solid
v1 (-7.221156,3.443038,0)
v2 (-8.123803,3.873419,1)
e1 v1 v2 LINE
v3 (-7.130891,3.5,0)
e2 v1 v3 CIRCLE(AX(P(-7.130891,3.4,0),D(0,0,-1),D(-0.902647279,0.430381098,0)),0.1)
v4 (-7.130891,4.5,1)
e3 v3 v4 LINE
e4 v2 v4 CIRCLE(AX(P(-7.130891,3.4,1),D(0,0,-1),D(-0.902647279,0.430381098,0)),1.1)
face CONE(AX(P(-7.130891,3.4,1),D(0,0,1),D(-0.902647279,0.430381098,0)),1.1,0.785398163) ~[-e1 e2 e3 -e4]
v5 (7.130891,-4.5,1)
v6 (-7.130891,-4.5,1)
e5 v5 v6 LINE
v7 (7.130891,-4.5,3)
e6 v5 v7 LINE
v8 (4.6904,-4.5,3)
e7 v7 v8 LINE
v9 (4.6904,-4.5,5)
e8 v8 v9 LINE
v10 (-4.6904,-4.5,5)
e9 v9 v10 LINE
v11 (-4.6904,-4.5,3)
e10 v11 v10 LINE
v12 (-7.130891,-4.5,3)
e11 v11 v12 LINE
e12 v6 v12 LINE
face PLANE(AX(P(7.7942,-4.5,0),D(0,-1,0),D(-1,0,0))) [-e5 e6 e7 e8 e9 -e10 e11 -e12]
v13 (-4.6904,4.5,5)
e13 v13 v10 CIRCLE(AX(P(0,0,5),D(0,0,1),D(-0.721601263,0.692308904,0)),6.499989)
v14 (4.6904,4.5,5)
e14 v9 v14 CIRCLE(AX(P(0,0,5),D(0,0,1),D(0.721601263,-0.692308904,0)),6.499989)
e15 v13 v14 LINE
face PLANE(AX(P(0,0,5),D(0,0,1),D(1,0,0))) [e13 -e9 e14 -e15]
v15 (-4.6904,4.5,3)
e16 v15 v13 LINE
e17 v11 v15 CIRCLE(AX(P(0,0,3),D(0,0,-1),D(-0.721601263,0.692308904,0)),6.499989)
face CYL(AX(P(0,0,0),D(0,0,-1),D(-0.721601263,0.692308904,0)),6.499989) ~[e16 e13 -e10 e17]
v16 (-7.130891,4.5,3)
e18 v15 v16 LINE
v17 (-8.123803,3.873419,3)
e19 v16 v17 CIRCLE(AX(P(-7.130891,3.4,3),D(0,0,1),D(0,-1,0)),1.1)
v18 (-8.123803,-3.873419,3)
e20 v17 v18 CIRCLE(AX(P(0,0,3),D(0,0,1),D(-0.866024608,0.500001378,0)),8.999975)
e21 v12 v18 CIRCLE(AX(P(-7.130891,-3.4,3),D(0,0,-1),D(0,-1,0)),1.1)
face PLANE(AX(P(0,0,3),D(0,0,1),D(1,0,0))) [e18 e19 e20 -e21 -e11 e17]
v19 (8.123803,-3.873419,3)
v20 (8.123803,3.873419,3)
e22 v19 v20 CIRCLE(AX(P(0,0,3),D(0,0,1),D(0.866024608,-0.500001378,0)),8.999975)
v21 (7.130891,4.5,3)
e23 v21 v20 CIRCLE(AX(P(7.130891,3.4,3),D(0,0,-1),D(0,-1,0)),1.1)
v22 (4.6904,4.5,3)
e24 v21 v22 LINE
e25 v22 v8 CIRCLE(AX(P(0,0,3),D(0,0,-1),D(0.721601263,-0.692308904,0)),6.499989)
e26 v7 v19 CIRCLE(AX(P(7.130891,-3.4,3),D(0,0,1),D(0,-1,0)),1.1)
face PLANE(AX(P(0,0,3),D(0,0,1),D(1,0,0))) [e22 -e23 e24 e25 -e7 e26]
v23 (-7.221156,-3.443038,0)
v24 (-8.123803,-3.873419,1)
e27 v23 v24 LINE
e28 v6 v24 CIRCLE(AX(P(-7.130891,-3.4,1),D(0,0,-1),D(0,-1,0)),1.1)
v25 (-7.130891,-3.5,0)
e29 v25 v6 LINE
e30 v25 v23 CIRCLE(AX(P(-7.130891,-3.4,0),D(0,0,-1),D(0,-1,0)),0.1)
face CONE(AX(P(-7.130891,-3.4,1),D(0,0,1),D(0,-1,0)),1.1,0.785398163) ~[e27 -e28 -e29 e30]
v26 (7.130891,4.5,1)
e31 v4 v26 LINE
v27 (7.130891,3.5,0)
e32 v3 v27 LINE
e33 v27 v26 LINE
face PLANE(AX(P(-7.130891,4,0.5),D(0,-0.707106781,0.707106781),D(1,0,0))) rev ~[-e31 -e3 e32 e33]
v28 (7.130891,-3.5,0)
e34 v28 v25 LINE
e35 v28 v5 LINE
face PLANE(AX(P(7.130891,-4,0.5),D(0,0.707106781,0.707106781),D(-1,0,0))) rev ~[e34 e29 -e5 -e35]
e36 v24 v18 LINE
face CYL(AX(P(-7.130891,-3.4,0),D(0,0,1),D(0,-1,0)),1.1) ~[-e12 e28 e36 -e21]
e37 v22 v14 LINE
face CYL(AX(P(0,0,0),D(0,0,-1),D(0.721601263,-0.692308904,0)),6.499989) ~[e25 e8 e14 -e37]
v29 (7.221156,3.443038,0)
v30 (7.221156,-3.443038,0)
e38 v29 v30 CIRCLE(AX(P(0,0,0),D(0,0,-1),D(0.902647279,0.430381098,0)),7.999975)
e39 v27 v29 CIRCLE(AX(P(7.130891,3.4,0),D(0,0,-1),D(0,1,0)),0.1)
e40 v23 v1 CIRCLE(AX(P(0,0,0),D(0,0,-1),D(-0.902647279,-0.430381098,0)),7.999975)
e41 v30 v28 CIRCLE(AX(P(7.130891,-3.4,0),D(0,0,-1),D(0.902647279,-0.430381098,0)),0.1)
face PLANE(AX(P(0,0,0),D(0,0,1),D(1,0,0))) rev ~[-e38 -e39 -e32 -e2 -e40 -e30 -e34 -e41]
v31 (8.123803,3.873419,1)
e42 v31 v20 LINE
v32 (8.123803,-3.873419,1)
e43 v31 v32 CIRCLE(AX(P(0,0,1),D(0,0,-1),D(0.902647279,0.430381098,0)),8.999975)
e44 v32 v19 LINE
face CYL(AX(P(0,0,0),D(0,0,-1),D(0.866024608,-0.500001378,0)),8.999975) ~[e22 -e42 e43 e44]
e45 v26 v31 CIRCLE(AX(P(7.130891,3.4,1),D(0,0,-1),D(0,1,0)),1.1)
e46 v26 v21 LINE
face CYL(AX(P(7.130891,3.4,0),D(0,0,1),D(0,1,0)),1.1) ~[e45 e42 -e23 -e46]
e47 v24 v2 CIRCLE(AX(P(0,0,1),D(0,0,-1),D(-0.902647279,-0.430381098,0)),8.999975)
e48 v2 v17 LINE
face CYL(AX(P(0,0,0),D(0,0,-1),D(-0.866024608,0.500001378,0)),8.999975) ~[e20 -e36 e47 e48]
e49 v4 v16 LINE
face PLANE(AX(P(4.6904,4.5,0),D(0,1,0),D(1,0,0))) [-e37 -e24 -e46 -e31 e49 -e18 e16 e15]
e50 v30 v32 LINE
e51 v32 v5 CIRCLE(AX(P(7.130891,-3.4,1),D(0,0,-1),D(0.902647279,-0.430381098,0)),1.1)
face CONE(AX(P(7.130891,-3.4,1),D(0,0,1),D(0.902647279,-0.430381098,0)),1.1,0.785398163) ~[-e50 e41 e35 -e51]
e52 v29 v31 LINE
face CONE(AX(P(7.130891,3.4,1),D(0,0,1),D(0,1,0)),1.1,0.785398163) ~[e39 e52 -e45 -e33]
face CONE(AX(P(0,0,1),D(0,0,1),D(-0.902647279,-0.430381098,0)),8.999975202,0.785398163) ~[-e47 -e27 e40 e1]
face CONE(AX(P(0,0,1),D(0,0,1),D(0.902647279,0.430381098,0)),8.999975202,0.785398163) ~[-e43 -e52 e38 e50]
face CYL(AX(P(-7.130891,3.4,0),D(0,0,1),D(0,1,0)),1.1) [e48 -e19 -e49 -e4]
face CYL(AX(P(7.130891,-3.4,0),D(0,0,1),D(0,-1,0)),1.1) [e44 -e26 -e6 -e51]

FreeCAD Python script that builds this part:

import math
import FreeCAD as App
import Part
import Sketcher


def edges_at(feature, points):
    """Names of the edges that pass closest to the given points."""
    edges = feature.Shape.Edges
    near = lambda p: min(range(len(edges)), key=lambda i: edges[i].distToShape(Part.Vertex(*p))[0])
    return sorted({f"Edge{near(p) + 1}" for p in points})

doc = App.newDocument("Part")
params = doc.addObject("Spreadsheet::Sheet", "Params")
for row, (alias, value) in enumerate([
    ("sketch1_radius", "9 mm"),
    ("pad1_length", "3 mm"),
    ("sketch2_radius", "6.5 mm"),
    ("pad2_length", "5 mm"),
    ("fillet_radius", "1.1 mm"),
    ("chamfer_size", "1 mm"),
], start=1):
    params.set(f"A{row}", alias)
    params.set(f"B{row}", "=" + value)
    params.setAlias(f"B{row}", alias)

body = doc.addObject("PartDesign::Body", "Body")

# Sketch on XY plane
sketch1 = body.newObject("Sketcher::SketchObject", "Sketch")
sketch1.AttachmentSupport = (doc.getObject("XY_Plane"), [""])
sketch1.MapMode = "FlatFace"
sketch1.addGeometry(Part.ArcOfCircle(Part.Circle(App.Vector(0, 0, 0), App.Vector(0, 0, 1), 9), math.radians(-30), math.radians(30)), False)
sketch1.addGeometry(Part.LineSegment(App.Vector(8, 4, 0), App.Vector(-8, 4, 0)), False)
sketch1.addGeometry(Part.ArcOfCircle(Part.Circle(App.Vector(0, 0, 0), App.Vector(0, 0, 1), 9), math.radians(150), math.radians(210)), False)
sketch1.addGeometry(Part.LineSegment(App.Vector(-8, -4, 0), App.Vector(8, -4, 0)), False)
sketch1.addConstraint(Sketcher.Constraint("Coincident", 0, 2, 1, 1))
sketch1.addConstraint(Sketcher.Constraint("Coincident", 1, 2, 2, 1))
sketch1.addConstraint(Sketcher.Constraint("Coincident", 2, 2, 3, 1))
sketch1.addConstraint(Sketcher.Constraint("Coincident", 3, 2, 0, 1))
sketch1.addConstraint(Sketcher.Constraint("Horizontal", 1))
sketch1.addConstraint(Sketcher.Constraint("Horizontal", 3))
sketch1.addConstraint(Sketcher.Constraint("Coincident", 0, 3, -1, 1))
sketch1.addConstraint(Sketcher.Constraint("Coincident", 2, 3, -1, 1))
sketch1.addConstraint(Sketcher.Constraint("Equal", 0, 2))
sketch1.addConstraint(Sketcher.Constraint("Vertical", 1, 2, 2, 2))
sketch1.addConstraint(Sketcher.Constraint("Radius", 0, 9.0))
sketch1.addConstraint(Sketcher.Constraint("DistanceY", 2, 2, 1, 2, 9.0))
sketch1.setExpression("Constraints[10]", "Params.sketch1_radius")
pad1 = body.newObject("PartDesign::Pad", "Pad")
pad1.Profile = sketch1
pad1.setExpression("Length", "Params.pad1_length")

# Sketch on XY plane
sketch2 = body.newObject("Sketcher::SketchObject", "Sketch001")
sketch2.AttachmentSupport = (doc.getObject("XY_Plane"), [""])
sketch2.MapMode = "FlatFace"
sketch2.addGeometry(Part.LineSegment(App.Vector(-5, -4, 0), App.Vector(5, -4, 0)), False)
sketch2.addGeometry(Part.ArcOfCircle(Part.Circle(App.Vector(0, 0, 0), App.Vector(0, 0, 1), 6), math.radians(-44), math.radians(44)), False)
sketch2.addGeometry(Part.LineSegment(App.Vector(5, 4, 0), App.Vector(-5, 4, 0)), False)
sketch2.addGeometry(Part.ArcOfCircle(Part.Circle(App.Vector(0, 0, 0), App.Vector(0, 0, 1), 6), math.radians(136), math.radians(224)), False)
sketch2.addConstraint(Sketcher.Constraint("Coincident", 0, 2, 1, 1))
sketch2.addConstraint(Sketcher.Constraint("Coincident", 1, 2, 2, 1))
sketch2.addConstraint(Sketcher.Constraint("Coincident", 2, 2, 3, 1))
sketch2.addConstraint(Sketcher.Constraint("Coincident", 3, 2, 0, 1))
sketch2.addConstraint(Sketcher.Constraint("Horizontal", 0))
sketch2.addConstraint(Sketcher.Constraint("Horizontal", 2))
sketch2.addConstraint(Sketcher.Constraint("Coincident", 1, 3, -1, 1))
sketch2.addConstraint(Sketcher.Constraint("Coincident", 3, 3, -1, 1))
sketch2.addConstraint(Sketcher.Constraint("Equal", 1, 3))
sketch2.addConstraint(Sketcher.Constraint("Vertical", 0, 2, 1, 2))
sketch2.addConstraint(Sketcher.Constraint("Radius", 1, 6.5))
sketch2.addConstraint(Sketcher.Constraint("DistanceY", 0, 2, 1, 2, 9.0))
sketch2.setExpression("Constraints[10]", "Params.sketch2_radius")
pad2 = body.newObject("PartDesign::Pad", "Pad001")
pad2.Profile = sketch2
pad2.setExpression("Length", "Params.pad2_length")
doc.recompute()

fillet = body.newObject("PartDesign::Fillet", "Fillet")
fillet.Base = (pad2, edges_at(pad2, [
    (7.794, -4.5, 1.5),
    (-7.794, -4.5, 1.5),
    (-7.794, 4.5, 1.5),
    (7.794, 4.5, 1.5),
]))
fillet.setExpression("Radius", "Params.fillet_radius")
doc.recompute()

chamfer = body.newObject("PartDesign::Chamfer", "Chamfer")
chamfer.Base = (fillet, edges_at(fillet, [
    (-7.718, -4.33, 0),
    (-9, 0, 0),
    (-7.718, 4.33, 0),
    (0, 4.5, 0),
    (7.718, 4.33, 0),
    (9, 0, 0),
    (7.718, -4.33, 0),
    (0, -4.5, 0),
]))
chamfer.setExpression("Size", "Params.chamfer_size")

doc.recompute()
